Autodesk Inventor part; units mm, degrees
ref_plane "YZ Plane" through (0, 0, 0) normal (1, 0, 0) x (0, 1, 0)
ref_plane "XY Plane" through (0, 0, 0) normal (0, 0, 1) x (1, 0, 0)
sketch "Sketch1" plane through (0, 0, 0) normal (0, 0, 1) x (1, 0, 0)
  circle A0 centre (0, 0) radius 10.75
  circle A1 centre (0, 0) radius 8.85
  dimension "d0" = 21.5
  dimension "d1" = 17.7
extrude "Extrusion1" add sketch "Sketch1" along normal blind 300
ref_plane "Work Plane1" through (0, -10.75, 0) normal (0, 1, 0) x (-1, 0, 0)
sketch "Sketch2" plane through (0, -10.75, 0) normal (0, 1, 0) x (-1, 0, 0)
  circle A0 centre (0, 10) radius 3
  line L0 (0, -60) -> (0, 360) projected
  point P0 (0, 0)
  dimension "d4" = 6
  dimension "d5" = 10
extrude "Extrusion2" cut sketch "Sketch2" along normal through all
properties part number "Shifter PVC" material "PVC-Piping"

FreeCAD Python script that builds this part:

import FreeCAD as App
import Part
import Sketcher
from FreeCAD import Vector

doc = App.newDocument("Part")
body = doc.addObject("PartDesign::Body", "Body")

sketch1 = body.newObject("Sketcher::SketchObject", "Sketch")
sketch1.AttachmentSupport = (doc.getObject("XY_Plane"), [""])
sketch1.MapMode = "FlatFace"
sketch1.addGeometry([
    Part.Circle(Vector(0, 0, 0), Vector(0, 0, 1), 10.75),
    Part.Circle(Vector(0, 0, 0), Vector(0, 0, 1), 8.85),
], False)
sketch1.addConstraint([
    Sketcher.Constraint("Coincident", 0, 3, -1, 1),
    Sketcher.Constraint("Coincident", 1, 3, -1, 1),
    Sketcher.Constraint("Diameter", 0, 21.5),
    Sketcher.Constraint("Diameter", 1, 17.7),
])
pad1 = body.newObject("PartDesign::Pad", "Pad")
pad1.Profile = sketch1
pad1.Length = 300

sketch2 = body.newObject("Sketcher::SketchObject", "Sketch001")
sketch2.AttachmentSupport = (doc.getObject("XZ_Plane"), [""])
sketch2.MapMode = "FlatFace"
sketch2.AttachmentOffset = App.Placement(Vector(0, 0, 10.75), App.Rotation())
sketch2.addGeometry(Part.Circle(Vector(0, 10, 0), Vector(0, 0, 1), 3), False)
sketch2.addConstraint([
    Sketcher.Constraint("PointOnObject", 0, 3, -2),
    Sketcher.Constraint("Diameter", 0, 6.0),
    Sketcher.Constraint("DistanceY", -1, 1, 0, 3, 10.0),
])
pocket1 = body.newObject("PartDesign::Pocket", "Pocket")
pocket1.Profile = sketch2
pocket1.Type = "ThroughAll"

doc.recompute()
